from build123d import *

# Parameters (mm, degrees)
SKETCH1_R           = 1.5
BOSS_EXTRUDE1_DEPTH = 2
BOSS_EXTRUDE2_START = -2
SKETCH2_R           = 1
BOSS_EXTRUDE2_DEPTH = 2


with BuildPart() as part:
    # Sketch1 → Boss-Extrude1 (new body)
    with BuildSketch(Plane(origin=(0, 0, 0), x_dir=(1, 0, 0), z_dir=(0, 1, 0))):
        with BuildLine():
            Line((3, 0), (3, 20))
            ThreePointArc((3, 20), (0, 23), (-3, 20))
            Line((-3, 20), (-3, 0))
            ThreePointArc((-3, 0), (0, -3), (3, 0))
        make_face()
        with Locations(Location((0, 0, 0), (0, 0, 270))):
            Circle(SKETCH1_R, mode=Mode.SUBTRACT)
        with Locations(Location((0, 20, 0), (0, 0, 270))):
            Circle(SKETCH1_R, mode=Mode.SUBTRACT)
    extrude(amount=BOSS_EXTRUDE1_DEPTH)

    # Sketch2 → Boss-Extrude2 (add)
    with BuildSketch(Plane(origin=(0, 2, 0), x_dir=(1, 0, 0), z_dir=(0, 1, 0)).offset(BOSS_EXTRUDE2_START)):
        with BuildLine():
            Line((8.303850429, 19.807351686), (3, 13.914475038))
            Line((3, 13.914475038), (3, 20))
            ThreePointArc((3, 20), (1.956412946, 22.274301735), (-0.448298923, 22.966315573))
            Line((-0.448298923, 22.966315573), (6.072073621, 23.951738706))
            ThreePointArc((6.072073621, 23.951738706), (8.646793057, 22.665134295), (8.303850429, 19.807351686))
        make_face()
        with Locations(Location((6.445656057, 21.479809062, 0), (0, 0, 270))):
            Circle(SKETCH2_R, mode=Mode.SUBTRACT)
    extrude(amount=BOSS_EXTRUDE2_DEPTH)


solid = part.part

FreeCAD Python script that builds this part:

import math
import FreeCAD as App
import Part
import Sketcher

V = App.Vector

doc = App.newDocument("Part")
body = doc.addObject("PartDesign::Body", "Body")

sketch1 = body.newObject("Sketcher::SketchObject", "Sketch")
sketch1.AttachmentSupport = (doc.getObject("XZ_Plane"), [""])
sketch1.MapMode = "FlatFace"
sketch1.addGeometry([
    Part.LineSegment(V(3, 0, 0), V(3, -20, 0)),
    Part.ArcOfCircle(Part.Circle(V(0, -20, 0), V(0, 0, 1), 3), math.radians(180), math.radians(360)),
    Part.LineSegment(V(-3, -20, 0), V(-3, 0, 0)),
    Part.ArcOfCircle(Part.Circle(V(0, 0, 0), V(0, 0, 1), 3), math.radians(0), math.radians(180)),
    Part.Circle(V(0, 0, 0), V(0, 0, 1), 1.5),
    Part.Circle(V(0, -20, 0), V(0, 0, 1), 1.5),
], False)
sketch1.addConstraint([
    Sketcher.Constraint("Tangent", 0, 2, 1, 2),
    Sketcher.Constraint("Tangent", 1, 1, 2, 1),
    Sketcher.Constraint("Tangent", 2, 2, 3, 2),
    Sketcher.Constraint("Tangent", 3, 1, 0, 1),
    Sketcher.Constraint("Vertical", 0),
    Sketcher.Constraint("Vertical", 2),
    Sketcher.Constraint("Coincident", 3, 3, -1, 1),
    Sketcher.Constraint("Coincident", 4, 3, -1, 1),
    Sketcher.Constraint("Coincident", 5, 3, 1, 3),
    Sketcher.Constraint("Equal", 4, 5),
    Sketcher.Constraint("Diameter", 4, 3.0),
    Sketcher.Constraint("Radius", 1, 3.0),
    Sketcher.Constraint("DistanceY", 0, 2, 0, 1, 20.0),
])
pad1 = body.newObject("PartDesign::Pad", "Pad")
pad1.Profile = sketch1
pad1.Length = 2
pad1.Reversed = True

sketch2 = body.newObject("Sketcher::SketchObject", "Sketch001")
sketch2.AttachmentSupport = (doc.getObject("XZ_Plane"), [""])
sketch2.MapMode = "FlatFace"
sketch2.addGeometry([
    Part.LineSegment(V(3, -13.9, 0), V(8.3, -19.8, 0)),
    Part.ArcOfCircle(Part.Circle(V(6.4, -21.5, 0), V(0, 0, 1), 2.5), math.radians(-99), math.radians(42)),
    Part.LineSegment(V(6.1, -24, 0), V(-0.4, -23, 0)),
    Part.ArcOfCircle(Part.Circle(V(0, -20, 0), V(0, 0, 1), 3), math.radians(-99), math.radians(0)),
    Part.LineSegment(V(3, -20, 0), V(3, -13.9, 0)),
    Part.Circle(V(6.4, -21.5, 0), V(0, 0, 1), 1),
], False)
sketch2.addConstraint([
    Sketcher.Constraint("Tangent", 0, 2, 1, 2),
    Sketcher.Constraint("Tangent", 1, 1, 2, 1),
    Sketcher.Constraint("Tangent", 2, 2, 3, 1),
    Sketcher.Constraint("Tangent", 3, 2, 4, 1),
    Sketcher.Constraint("Coincident", 4, 2, 0, 1),
    Sketcher.Constraint("Vertical", 4),
    Sketcher.Constraint("Coincident", 5, 3, 1, 3),
    Sketcher.Constraint("PointOnObject", 3, 3, -2),
    Sketcher.Constraint("Diameter", 5, 2.0),
    Sketcher.Constraint("Radius", 3, 3.0),
    Sketcher.Constraint("Radius", 1, 2.5),
    Sketcher.Constraint("DistanceY", 3, 3, -1, 1, 20.0),
    Sketcher.Constraint("DistanceX", 2, 2, -1, 1, 0.448299),
    Sketcher.Constraint("Distance", 0, 7.92823),
    Sketcher.Constraint("DistanceY", 4, 1, 4, 2, 6.085525),
])
pad2 = body.newObject("PartDesign::Pad", "Pad001")
pad2.Profile = sketch2
pad2.Length = 2
pad2.Reversed = True

doc.recompute()
